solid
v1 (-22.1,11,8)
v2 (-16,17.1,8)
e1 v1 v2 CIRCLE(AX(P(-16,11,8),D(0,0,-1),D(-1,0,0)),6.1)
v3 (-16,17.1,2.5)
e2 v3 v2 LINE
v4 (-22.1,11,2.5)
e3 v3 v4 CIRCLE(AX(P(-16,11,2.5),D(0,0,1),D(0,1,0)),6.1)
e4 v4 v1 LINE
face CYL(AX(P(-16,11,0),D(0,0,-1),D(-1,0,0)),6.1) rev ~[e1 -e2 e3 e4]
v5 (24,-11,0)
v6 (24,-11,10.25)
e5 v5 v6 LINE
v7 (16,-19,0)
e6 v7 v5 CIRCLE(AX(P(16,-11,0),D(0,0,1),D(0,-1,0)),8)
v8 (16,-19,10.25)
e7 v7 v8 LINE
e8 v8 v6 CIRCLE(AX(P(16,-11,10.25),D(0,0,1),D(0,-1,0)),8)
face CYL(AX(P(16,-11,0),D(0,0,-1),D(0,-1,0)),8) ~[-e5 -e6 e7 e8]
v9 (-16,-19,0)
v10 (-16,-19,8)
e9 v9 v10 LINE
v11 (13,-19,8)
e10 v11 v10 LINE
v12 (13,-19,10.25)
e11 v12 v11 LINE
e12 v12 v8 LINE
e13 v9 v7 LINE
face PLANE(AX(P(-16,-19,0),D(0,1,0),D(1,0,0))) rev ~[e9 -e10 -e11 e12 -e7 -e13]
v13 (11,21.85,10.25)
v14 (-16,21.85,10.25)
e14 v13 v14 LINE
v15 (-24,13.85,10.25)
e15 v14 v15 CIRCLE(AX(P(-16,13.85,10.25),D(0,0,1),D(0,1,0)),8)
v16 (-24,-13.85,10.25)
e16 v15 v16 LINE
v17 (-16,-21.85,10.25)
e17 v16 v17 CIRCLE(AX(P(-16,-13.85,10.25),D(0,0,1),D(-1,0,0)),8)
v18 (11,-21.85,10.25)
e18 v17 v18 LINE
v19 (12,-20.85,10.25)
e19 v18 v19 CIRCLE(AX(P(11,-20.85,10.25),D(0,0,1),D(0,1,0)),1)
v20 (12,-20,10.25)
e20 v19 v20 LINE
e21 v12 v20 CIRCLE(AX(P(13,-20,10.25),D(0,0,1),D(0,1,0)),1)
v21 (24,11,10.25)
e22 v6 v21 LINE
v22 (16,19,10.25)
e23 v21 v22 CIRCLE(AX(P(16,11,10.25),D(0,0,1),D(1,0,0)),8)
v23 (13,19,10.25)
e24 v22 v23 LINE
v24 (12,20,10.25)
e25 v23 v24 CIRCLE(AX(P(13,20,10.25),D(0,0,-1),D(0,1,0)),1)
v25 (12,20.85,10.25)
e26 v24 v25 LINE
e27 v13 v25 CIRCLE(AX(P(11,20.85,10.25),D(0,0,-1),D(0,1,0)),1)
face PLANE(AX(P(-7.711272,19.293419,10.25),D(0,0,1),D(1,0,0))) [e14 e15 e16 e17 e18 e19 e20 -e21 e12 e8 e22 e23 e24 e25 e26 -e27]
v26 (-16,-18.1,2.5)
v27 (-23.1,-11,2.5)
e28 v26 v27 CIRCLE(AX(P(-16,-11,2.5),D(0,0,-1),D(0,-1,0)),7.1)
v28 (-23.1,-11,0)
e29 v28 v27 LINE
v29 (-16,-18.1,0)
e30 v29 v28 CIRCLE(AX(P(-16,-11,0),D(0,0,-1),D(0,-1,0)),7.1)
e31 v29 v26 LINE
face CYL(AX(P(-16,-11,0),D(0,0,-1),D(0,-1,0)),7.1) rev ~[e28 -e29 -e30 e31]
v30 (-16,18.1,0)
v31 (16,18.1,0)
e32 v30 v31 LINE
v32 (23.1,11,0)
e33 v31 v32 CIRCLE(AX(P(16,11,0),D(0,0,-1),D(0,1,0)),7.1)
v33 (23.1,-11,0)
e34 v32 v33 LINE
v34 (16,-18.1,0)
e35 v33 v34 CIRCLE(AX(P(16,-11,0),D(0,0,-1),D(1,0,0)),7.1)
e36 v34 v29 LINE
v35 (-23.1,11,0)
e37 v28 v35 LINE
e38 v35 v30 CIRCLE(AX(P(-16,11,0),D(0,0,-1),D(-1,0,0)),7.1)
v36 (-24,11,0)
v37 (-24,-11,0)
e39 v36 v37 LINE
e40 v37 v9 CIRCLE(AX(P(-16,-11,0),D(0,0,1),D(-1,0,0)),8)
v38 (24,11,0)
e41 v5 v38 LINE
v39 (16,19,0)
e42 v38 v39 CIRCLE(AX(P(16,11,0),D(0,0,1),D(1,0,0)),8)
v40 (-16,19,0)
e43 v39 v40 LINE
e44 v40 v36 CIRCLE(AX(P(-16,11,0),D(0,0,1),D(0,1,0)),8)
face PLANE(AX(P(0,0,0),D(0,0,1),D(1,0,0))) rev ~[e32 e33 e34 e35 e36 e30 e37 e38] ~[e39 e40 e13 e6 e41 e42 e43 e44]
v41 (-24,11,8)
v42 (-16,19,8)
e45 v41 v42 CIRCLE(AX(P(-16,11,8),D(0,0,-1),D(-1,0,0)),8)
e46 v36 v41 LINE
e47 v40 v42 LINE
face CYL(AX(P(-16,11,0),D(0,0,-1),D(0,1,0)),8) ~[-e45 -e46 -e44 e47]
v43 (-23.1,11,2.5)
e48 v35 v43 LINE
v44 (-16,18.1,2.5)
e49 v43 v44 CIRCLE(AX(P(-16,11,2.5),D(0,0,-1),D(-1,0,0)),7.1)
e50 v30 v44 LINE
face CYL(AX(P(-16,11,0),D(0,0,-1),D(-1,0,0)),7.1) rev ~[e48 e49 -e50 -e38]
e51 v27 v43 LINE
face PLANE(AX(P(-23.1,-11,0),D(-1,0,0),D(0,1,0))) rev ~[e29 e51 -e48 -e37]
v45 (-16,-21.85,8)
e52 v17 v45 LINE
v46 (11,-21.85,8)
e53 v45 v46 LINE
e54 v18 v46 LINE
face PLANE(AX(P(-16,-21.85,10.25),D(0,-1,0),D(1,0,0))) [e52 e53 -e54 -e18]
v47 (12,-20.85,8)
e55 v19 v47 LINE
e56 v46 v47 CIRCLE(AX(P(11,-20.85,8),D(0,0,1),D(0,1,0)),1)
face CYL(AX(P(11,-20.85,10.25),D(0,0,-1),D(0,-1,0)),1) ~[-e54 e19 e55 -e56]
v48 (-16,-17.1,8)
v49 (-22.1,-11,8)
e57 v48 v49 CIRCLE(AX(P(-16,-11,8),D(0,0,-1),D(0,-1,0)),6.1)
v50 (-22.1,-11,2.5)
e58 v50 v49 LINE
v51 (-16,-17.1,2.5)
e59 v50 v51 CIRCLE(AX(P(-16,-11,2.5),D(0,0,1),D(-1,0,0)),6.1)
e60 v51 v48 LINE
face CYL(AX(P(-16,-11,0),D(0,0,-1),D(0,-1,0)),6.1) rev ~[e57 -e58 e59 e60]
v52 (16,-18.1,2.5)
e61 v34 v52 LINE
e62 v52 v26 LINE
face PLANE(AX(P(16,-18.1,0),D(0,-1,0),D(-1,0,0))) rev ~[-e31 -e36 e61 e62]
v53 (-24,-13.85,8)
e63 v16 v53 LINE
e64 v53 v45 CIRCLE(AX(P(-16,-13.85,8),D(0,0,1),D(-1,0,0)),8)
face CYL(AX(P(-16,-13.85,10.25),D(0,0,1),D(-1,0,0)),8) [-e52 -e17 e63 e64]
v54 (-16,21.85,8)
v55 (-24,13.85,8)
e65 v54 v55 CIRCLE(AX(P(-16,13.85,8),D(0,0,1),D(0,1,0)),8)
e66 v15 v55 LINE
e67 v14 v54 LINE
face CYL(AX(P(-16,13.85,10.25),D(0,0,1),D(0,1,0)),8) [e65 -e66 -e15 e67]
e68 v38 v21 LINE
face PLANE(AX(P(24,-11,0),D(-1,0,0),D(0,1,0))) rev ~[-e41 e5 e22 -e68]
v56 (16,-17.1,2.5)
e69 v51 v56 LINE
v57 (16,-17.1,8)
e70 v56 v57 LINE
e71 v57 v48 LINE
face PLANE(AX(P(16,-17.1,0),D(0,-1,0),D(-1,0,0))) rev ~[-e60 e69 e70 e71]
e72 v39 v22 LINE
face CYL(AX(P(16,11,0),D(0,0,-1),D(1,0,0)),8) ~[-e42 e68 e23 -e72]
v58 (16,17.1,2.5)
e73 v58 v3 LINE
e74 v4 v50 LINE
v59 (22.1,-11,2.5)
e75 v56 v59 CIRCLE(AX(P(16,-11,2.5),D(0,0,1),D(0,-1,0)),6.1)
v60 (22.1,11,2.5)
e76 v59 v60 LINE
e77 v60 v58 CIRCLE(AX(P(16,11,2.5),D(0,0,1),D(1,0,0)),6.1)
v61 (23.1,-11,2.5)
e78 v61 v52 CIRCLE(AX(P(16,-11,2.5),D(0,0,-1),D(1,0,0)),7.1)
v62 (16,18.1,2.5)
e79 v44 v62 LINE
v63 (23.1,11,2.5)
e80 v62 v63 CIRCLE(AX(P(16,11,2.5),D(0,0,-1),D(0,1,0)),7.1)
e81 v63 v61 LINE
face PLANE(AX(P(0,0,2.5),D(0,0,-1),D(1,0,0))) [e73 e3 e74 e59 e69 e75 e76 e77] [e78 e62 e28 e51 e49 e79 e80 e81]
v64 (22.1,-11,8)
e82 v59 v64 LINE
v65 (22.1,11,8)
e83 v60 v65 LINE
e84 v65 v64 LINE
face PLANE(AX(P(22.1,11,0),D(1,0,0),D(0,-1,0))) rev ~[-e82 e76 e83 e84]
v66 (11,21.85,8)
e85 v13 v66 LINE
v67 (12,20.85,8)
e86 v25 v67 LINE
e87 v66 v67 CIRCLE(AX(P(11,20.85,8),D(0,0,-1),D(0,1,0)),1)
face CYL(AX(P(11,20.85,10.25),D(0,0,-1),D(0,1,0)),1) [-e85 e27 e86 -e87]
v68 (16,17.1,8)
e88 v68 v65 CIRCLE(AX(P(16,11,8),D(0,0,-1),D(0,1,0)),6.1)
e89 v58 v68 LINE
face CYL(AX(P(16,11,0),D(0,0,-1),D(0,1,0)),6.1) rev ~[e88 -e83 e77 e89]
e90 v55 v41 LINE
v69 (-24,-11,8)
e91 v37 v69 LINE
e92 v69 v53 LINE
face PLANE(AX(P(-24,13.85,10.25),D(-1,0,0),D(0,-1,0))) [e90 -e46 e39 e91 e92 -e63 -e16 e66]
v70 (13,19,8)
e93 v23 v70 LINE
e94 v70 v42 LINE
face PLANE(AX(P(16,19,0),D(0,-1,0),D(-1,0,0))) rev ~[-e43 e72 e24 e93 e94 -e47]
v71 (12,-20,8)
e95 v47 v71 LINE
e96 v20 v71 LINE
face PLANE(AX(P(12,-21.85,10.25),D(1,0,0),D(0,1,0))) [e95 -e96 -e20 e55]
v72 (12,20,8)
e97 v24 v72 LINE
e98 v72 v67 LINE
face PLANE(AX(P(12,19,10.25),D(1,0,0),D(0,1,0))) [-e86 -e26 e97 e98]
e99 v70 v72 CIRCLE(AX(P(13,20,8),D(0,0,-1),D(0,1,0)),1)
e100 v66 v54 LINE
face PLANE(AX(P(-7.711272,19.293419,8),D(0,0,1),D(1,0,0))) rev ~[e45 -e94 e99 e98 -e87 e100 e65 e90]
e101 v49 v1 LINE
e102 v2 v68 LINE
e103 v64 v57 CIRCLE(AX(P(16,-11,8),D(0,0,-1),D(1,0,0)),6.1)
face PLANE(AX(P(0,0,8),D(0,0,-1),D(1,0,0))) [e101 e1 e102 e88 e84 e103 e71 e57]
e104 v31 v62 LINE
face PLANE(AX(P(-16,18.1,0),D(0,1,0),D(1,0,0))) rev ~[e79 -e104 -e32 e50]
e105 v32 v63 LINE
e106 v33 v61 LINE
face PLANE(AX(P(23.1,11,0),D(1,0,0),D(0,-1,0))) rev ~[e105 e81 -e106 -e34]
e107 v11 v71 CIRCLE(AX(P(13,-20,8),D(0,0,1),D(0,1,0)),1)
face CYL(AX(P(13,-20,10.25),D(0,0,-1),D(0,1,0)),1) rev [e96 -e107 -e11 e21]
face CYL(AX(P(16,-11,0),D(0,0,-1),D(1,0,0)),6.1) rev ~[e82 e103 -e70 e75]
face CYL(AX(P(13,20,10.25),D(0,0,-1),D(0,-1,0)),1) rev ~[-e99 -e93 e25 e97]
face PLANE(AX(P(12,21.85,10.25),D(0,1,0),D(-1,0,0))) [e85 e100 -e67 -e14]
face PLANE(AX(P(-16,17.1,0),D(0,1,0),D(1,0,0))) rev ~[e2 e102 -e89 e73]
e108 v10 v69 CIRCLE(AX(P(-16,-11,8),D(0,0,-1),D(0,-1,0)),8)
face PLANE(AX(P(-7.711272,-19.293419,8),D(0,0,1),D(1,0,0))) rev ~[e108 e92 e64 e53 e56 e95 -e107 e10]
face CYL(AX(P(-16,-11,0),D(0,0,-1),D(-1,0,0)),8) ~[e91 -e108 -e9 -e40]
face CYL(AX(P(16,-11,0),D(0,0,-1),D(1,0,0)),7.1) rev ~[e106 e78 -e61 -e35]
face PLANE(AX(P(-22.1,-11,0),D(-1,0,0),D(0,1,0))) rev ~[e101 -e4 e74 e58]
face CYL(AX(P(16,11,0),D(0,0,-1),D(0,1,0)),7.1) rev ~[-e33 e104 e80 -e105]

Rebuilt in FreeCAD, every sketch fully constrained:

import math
import FreeCAD as App
import Part
import Sketcher


def edges_at(feature, points):
    """Names of the edges that pass closest to the given points."""
    edges = feature.Shape.Edges
    near = lambda p: min(range(len(edges)), key=lambda i: edges[i].distToShape(Part.Vertex(*p))[0])
    return sorted({f"Edge{near(p) + 1}" for p in points})

doc = App.newDocument("Part")
body = doc.addObject("PartDesign::Body", "Body")

# Sketch on XY plane
sketch1 = body.newObject("Sketcher::SketchObject", "Sketch")
sketch1.AttachmentSupport = (doc.getObject("XY_Plane"), [""])
sketch1.MapMode = "FlatFace"
sketch1.addGeometry(Part.LineSegment(App.Vector(16, 19, 0), App.Vector(-16, 19, 0)), False)
sketch1.addGeometry(Part.ArcOfCircle(Part.Circle(App.Vector(-16, 11, 0), App.Vector(0, 0, 1), 8), math.radians(90), math.radians(180)), False)
sketch1.addGeometry(Part.LineSegment(App.Vector(-24, 11, 0), App.Vector(-24, -11, 0)), False)
sketch1.addGeometry(Part.ArcOfCircle(Part.Circle(App.Vector(-16, -11, 0), App.Vector(0, 0, 1), 8), math.radians(180), math.radians(270)), False)
sketch1.addGeometry(Part.LineSegment(App.Vector(-16, -19, 0), App.Vector(16, -19, 0)), False)
sketch1.addGeometry(Part.ArcOfCircle(Part.Circle(App.Vector(16, -11, 0), App.Vector(0, 0, 1), 8), math.radians(-90), math.radians(0)), False)
sketch1.addGeometry(Part.LineSegment(App.Vector(24, -11, 0), App.Vector(24, 11, 0)), False)
sketch1.addGeometry(Part.ArcOfCircle(Part.Circle(App.Vector(16, 11, 0), App.Vector(0, 0, 1), 8), math.radians(0), math.radians(90)), False)
sketch1.addConstraint(Sketcher.Constraint("Tangent", 0, 2, 1, 1))
sketch1.addConstraint(Sketcher.Constraint("Tangent", 1, 2, 2, 1))
sketch1.addConstraint(Sketcher.Constraint("Tangent", 2, 2, 3, 1))
sketch1.addConstraint(Sketcher.Constraint("Tangent", 3, 2, 4, 1))
sketch1.addConstraint(Sketcher.Constraint("Tangent", 4, 2, 5, 1))
sketch1.addConstraint(Sketcher.Constraint("Tangent", 5, 2, 6, 1))
sketch1.addConstraint(Sketcher.Constraint("Tangent", 6, 2, 7, 1))
sketch1.addConstraint(Sketcher.Constraint("Tangent", 7, 2, 0, 1))
sketch1.addConstraint(Sketcher.Constraint("Horizontal", 0))
sketch1.addConstraint(Sketcher.Constraint("Vertical", 2))
sketch1.addConstraint(Sketcher.Constraint("Horizontal", 4))
sketch1.addConstraint(Sketcher.Constraint("Vertical", 6))
sketch1.addConstraint(Sketcher.Constraint("Equal", 1, 3))
sketch1.addConstraint(Sketcher.Constraint("Equal", 3, 5))
sketch1.addConstraint(Sketcher.Constraint("Equal", 5, 7))
sketch1.addConstraint(Sketcher.Constraint("Symmetric", 1, 3, 5, 3, -1, 1))
sketch1.addConstraint(Sketcher.Constraint("Radius", 1, 8.0))
sketch1.addConstraint(Sketcher.Constraint("DistanceX", 0, 2, 0, 1, 32.0))
sketch1.addConstraint(Sketcher.Constraint("DistanceY", 2, 2, 2, 1, 22.0))
pad1 = body.newObject("PartDesign::Pad", "Pad")
pad1.Profile = sketch1
pad1.Length = 10.25

# Sketch on XY plane
sketch2 = body.newObject("Sketcher::SketchObject", "Sketch001")
sketch2.AttachmentSupport = (doc.getObject("XY_Plane"), [""])
sketch2.MapMode = "FlatFace"
sketch2.AttachmentOffset = App.Placement(App.Vector(0, 0, 10.25), App.Rotation())
sketch2.addGeometry(Part.LineSegment(App.Vector(12, 21.9, 0), App.Vector(-16, 21.9, 0)), False)
sketch2.addGeometry(Part.ArcOfCircle(Part.Circle(App.Vector(-16, 13.8, 0), App.Vector(0, 0, 1), 8), math.radians(90), math.radians(180)), False)
sketch2.addGeometry(Part.LineSegment(App.Vector(-24, 13.8, 0), App.Vector(-24, 11, 0)), False)
sketch2.addGeometry(Part.ArcOfCircle(Part.Circle(App.Vector(-16, 11, 0), App.Vector(0, 0, 1), 8), math.radians(90), math.radians(180)), False)
sketch2.addGeometry(Part.LineSegment(App.Vector(-16, 19, 0), App.Vector(12, 19, 0)), False)
sketch2.addGeometry(Part.LineSegment(App.Vector(12, 19, 0), App.Vector(12, 21.9, 0)), False)
sketch2.addGeometry(Part.LineSegment(App.Vector(12, -21.9, 0), App.Vector(12, -19, 0)), False)
sketch2.addGeometry(Part.LineSegment(App.Vector(12, -19, 0), App.Vector(-16, -19, 0)), False)
sketch2.addGeometry(Part.ArcOfCircle(Part.Circle(App.Vector(-16, -11, 0), App.Vector(0, 0, 1), 8), math.radians(180), math.radians(270)), False)
sketch2.addGeometry(Part.LineSegment(App.Vector(-24, -11, 0), App.Vector(-24, -13.8, 0)), False)
sketch2.addGeometry(Part.ArcOfCircle(Part.Circle(App.Vector(-16, -13.8, 0), App.Vector(0, 0, 1), 8), math.radians(180), math.radians(270)), False)
sketch2.addGeometry(Part.LineSegment(App.Vector(-16, -21.9, 0), App.Vector(12, -21.9, 0)), False)
sketch2.addConstraint(Sketcher.Constraint("Tangent", 0, 2, 1, 1))
sketch2.addConstraint(Sketcher.Constraint("Tangent", 1, 2, 2, 1))
sketch2.addConstraint(Sketcher.Constraint("Tangent", 2, 2, 3, 2))
sketch2.addConstraint(Sketcher.Constraint("Tangent", 3, 1, 4, 1))
sketch2.addConstraint(Sketcher.Constraint("Coincident", 4, 2, 5, 1))
sketch2.addConstraint(Sketcher.Constraint("Coincident", 5, 2, 0, 1))
sketch2.addConstraint(Sketcher.Constraint("Coincident", 6, 2, 7, 1))
sketch2.addConstraint(Sketcher.Constraint("Tangent", 7, 2, 8, 2))
sketch2.addConstraint(Sketcher.Constraint("Tangent", 8, 1, 9, 1))
sketch2.addConstraint(Sketcher.Constraint("Tangent", 9, 2, 10, 1))
sketch2.addConstraint(Sketcher.Constraint("Tangent", 10, 2, 11, 1))
sketch2.addConstraint(Sketcher.Constraint("Coincident", 11, 2, 6, 1))
sketch2.addConstraint(Sketcher.Constraint("Horizontal", 0))
sketch2.addConstraint(Sketcher.Constraint("Vertical", 2))
sketch2.addConstraint(Sketcher.Constraint("Horizontal", 4))
sketch2.addConstraint(Sketcher.Constraint("Vertical", 5))
sketch2.addConstraint(Sketcher.Constraint("Vertical", 6))
sketch2.addConstraint(Sketcher.Constraint("Horizontal", 7))
sketch2.addConstraint(Sketcher.Constraint("Vertical", 9))
sketch2.addConstraint(Sketcher.Constraint("Horizontal", 11))
sketch2.addConstraint(Sketcher.Constraint("Equal", 1, 3))
sketch2.addConstraint(Sketcher.Constraint("Equal", 3, 8))
sketch2.addConstraint(Sketcher.Constraint("Equal", 8, 10))
sketch2.addConstraint(Sketcher.Constraint("Symmetric", 3, 3, 8, 3, -1))
sketch2.addConstraint(Sketcher.Constraint("Symmetric", 5, 2, 11, 2, -1))
sketch2.addConstraint(Sketcher.Constraint("Radius", 1, 8.0))
sketch2.addConstraint(Sketcher.Constraint("DistanceX", 0, 2, 0, 1, 28.0))
sketch2.addConstraint(Sketcher.Constraint("DistanceX", 1, 3, -1, 1, 16.0))
sketch2.addConstraint(Sketcher.Constraint("DistanceY", -1, 1, 3, 3, 11.0))
sketch2.addConstraint(Sketcher.Constraint("DistanceY", 2, 2, 2, 1, 2.85))
pad2 = body.newObject("PartDesign::Pad", "Pad001")
pad2.Profile = sketch2
pad2.Length = 2.25
pad2.Reversed = True
doc.recompute()

fillet = body.newObject("PartDesign::Fillet", "Fillet")
fillet.Base = (pad2, edges_at(pad2, [
    (12, -19, 9.125),
    (12, -21.85, 9.125),
    (12, 21.85, 9.125),
    (12, 19, 9.125),
]))
fillet.Radius = 1

# Sketch on XY plane
sketch3 = body.newObject("Sketcher::SketchObject", "Sketch002")
sketch3.AttachmentSupport = (doc.getObject("XY_Plane"), [""])
sketch3.MapMode = "FlatFace"
sketch3.addGeometry(Part.ArcOfCircle(Part.Circle(App.Vector(-16, -11, 0), App.Vector(0, 0, 1), 6), math.radians(180), math.radians(270)), False)
sketch3.addGeometry(Part.LineSegment(App.Vector(-22, -11, 0), App.Vector(-22, 11, 0)), False)
sketch3.addGeometry(Part.ArcOfCircle(Part.Circle(App.Vector(-16, 11, 0), App.Vector(0, 0, 1), 6), math.radians(90), math.radians(180)), False)
sketch3.addGeometry(Part.LineSegment(App.Vector(-16, 17, 0), App.Vector(16, 17, 0)), False)
sketch3.addGeometry(Part.ArcOfCircle(Part.Circle(App.Vector(16, 11, 0), App.Vector(0, 0, 1), 6), math.radians(0), math.radians(90)), False)
sketch3.addGeometry(Part.LineSegment(App.Vector(22, 11, 0), App.Vector(22, -11, 0)), False)
sketch3.addGeometry(Part.ArcOfCircle(Part.Circle(App.Vector(16, -11, 0), App.Vector(0, 0, 1), 6), math.radians(-90), math.radians(0)), False)
sketch3.addGeometry(Part.LineSegment(App.Vector(16, -17, 0), App.Vector(-16, -17, 0)), False)
sketch3.addConstraint(Sketcher.Constraint("Tangent", 0, 1, 1, 1))
sketch3.addConstraint(Sketcher.Constraint("Tangent", 1, 2, 2, 2))
sketch3.addConstraint(Sketcher.Constraint("Tangent", 2, 1, 3, 1))
sketch3.addConstraint(Sketcher.Constraint("Tangent", 3, 2, 4, 2))
sketch3.addConstraint(Sketcher.Constraint("Tangent", 4, 1, 5, 1))
sketch3.addConstraint(Sketcher.Constraint("Tangent", 5, 2, 6, 2))
sketch3.addConstraint(Sketcher.Constraint("Tangent", 6, 1, 7, 1))
sketch3.addConstraint(Sketcher.Constraint("Tangent", 7, 2, 0, 2))
sketch3.addConstraint(Sketcher.Constraint("Vertical", 1))
sketch3.addConstraint(Sketcher.Constraint("Horizontal", 3))
sketch3.addConstraint(Sketcher.Constraint("Vertical", 5))
sketch3.addConstraint(Sketcher.Constraint("Horizontal", 7))
sketch3.addConstraint(Sketcher.Constraint("Equal", 0, 2))
sketch3.addConstraint(Sketcher.Constraint("Equal", 2, 4))
sketch3.addConstraint(Sketcher.Constraint("Equal", 4, 6))
sketch3.addConstraint(Sketcher.Constraint("Symmetric", 0, 3, 4, 3, -1, 1))
sketch3.addConstraint(Sketcher.Constraint("Radius", 0, 6.1))
sketch3.addConstraint(Sketcher.Constraint("DistanceX", 3, 1, 3, 2, 32.0))
sketch3.addConstraint(Sketcher.Constraint("DistanceY", 1, 1, 1, 2, 22.0))
pocket1 = body.newObject("PartDesign::Pocket", "Pocket")
pocket1.Profile = sketch3
pocket1.Length = 8
pocket1.Reversed = True

# Sketch on XY plane
sketch4 = body.newObject("Sketcher::SketchObject", "Sketch003")
sketch4.AttachmentSupport = (doc.getObject("XY_Plane"), [""])
sketch4.MapMode = "FlatFace"
sketch4.addGeometry(Part.LineSegment(App.Vector(16, -18, 0), App.Vector(-16, -18, 0)), False)
sketch4.addGeometry(Part.ArcOfCircle(Part.Circle(App.Vector(-16, -11, 0), App.Vector(0, 0, 1), 7), math.radians(180), math.radians(270)), False)
sketch4.addGeometry(Part.LineSegment(App.Vector(-23, -11, 0), App.Vector(-23, 11, 0)), False)
sketch4.addGeometry(Part.ArcOfCircle(Part.Circle(App.Vector(-16, 11, 0), App.Vector(0, 0, 1), 7), math.radians(90), math.radians(180)), False)
sketch4.addGeometry(Part.LineSegment(App.Vector(-16, 18, 0), App.Vector(16, 18, 0)), False)
sketch4.addGeometry(Part.ArcOfCircle(Part.Circle(App.Vector(16, 11, 0), App.Vector(0, 0, 1), 7), math.radians(0), math.radians(90)), False)
sketch4.addGeometry(Part.LineSegment(App.Vector(23, 11, 0), App.Vector(23, -11, 0)), False)
sketch4.addGeometry(Part.ArcOfCircle(Part.Circle(App.Vector(16, -11, 0), App.Vector(0, 0, 1), 7), math.radians(-90), math.radians(0)), False)
sketch4.addGeometry(Part.ArcOfCircle(Part.Circle(App.Vector(-16, 11, 0), App.Vector(0, 0, 1), 6), math.radians(90), math.radians(180)), False)
sketch4.addGeometry(Part.LineSegment(App.Vector(-22, 11, 0), App.Vector(-22, -11, 0)), False)
sketch4.addGeometry(Part.ArcOfCircle(Part.Circle(App.Vector(-16, -11, 0), App.Vector(0, 0, 1), 6), math.radians(180), math.radians(270)), False)
sketch4.addGeometry(Part.LineSegment(App.Vector(-16, -17, 0), App.Vector(16, -17, 0)), False)
sketch4.addGeometry(Part.ArcOfCircle(Part.Circle(App.Vector(16, -11, 0), App.Vector(0, 0, 1), 6), math.radians(-90), math.radians(0)), False)
sketch4.addGeometry(Part.LineSegment(App.Vector(22, -11, 0), App.Vector(22, 11, 0)), False)
sketch4.addGeometry(Part.ArcOfCircle(Part.Circle(App.Vector(16, 11, 0), App.Vector(0, 0, 1), 6), math.radians(0), math.radians(90)), False)
sketch4.addGeometry(Part.LineSegment(App.Vector(16, 17, 0), App.Vector(-16, 17, 0)), False)
sketch4.addConstraint(Sketcher.Constraint("Tangent", 0, 2, 1, 2))
sketch4.addConstraint(Sketcher.Constraint("Tangent", 1, 1, 2, 1))
sketch4.addConstraint(Sketcher.Constraint("Tangent", 2, 2, 3, 2))
sketch4.addConstraint(Sketcher.Constraint("Tangent", 3, 1, 4, 1))
sketch4.addConstraint(Sketcher.Constraint("Tangent", 4, 2, 5, 2))
sketch4.addConstraint(Sketcher.Constraint("Tangent", 5, 1, 6, 1))
sketch4.addConstraint(Sketcher.Constraint("Tangent", 6, 2, 7, 2))
sketch4.addConstraint(Sketcher.Constraint("Tangent", 7, 1, 0, 1))
sketch4.addConstraint(Sketcher.Constraint("Tangent", 8, 2, 9, 1))
sketch4.addConstraint(Sketcher.Constraint("Tangent", 9, 2, 10, 1))
sketch4.addConstraint(Sketcher.Constraint("Tangent", 10, 2, 11, 1))
sketch4.addConstraint(Sketcher.Constraint("Tangent", 11, 2, 12, 1))
sketch4.addConstraint(Sketcher.Constraint("Tangent", 12, 2, 13, 1))
sketch4.addConstraint(Sketcher.Constraint("Tangent", 13, 2, 14, 1))
sketch4.addConstraint(Sketcher.Constraint("Tangent", 14, 2, 15, 1))
sketch4.addConstraint(Sketcher.Constraint("Tangent", 15, 2, 8, 1))
sketch4.addConstraint(Sketcher.Constraint("Horizontal", 0))
sketch4.addConstraint(Sketcher.Constraint("Vertical", 2))
sketch4.addConstraint(Sketcher.Constraint("Horizontal", 4))
sketch4.addConstraint(Sketcher.Constraint("Vertical", 6))
sketch4.addConstraint(Sketcher.Constraint("Vertical", 9))
sketch4.addConstraint(Sketcher.Constraint("Horizontal", 11))
sketch4.addConstraint(Sketcher.Constraint("Vertical", 13))
sketch4.addConstraint(Sketcher.Constraint("Horizontal", 15))
sketch4.addConstraint(Sketcher.Constraint("Coincident", 8, 3, 3, 3))
sketch4.addConstraint(Sketcher.Constraint("Coincident", 10, 3, 1, 3))
sketch4.addConstraint(Sketcher.Constraint("Coincident", 12, 3, 7, 3))
sketch4.addConstraint(Sketcher.Constraint("Equal", 1, 3))
sketch4.addConstraint(Sketcher.Constraint("Equal", 3, 5))
sketch4.addConstraint(Sketcher.Constraint("Equal", 5, 7))
sketch4.addConstraint(Sketcher.Constraint("Equal", 12, 14))
sketch4.addConstraint(Sketcher.Constraint("Symmetric", 1, 3, 5, 3, -1, 1))
sketch4.addConstraint(Sketcher.Constraint("Radius", 1, 7.1))
sketch4.addConstraint(Sketcher.Constraint("Radius", 8, 6.1))
sketch4.addConstraint(Sketcher.Constraint("DistanceX", 0, 2, 0, 1, 32.0))
sketch4.addConstraint(Sketcher.Constraint("DistanceY", 2, 1, 2, 2, 22.0))
pocket2 = body.newObject("PartDesign::Pocket", "Pocket001")
pocket2.Profile = sketch4
pocket2.Length = 2.5
pocket2.Reversed = True

doc.recompute()
